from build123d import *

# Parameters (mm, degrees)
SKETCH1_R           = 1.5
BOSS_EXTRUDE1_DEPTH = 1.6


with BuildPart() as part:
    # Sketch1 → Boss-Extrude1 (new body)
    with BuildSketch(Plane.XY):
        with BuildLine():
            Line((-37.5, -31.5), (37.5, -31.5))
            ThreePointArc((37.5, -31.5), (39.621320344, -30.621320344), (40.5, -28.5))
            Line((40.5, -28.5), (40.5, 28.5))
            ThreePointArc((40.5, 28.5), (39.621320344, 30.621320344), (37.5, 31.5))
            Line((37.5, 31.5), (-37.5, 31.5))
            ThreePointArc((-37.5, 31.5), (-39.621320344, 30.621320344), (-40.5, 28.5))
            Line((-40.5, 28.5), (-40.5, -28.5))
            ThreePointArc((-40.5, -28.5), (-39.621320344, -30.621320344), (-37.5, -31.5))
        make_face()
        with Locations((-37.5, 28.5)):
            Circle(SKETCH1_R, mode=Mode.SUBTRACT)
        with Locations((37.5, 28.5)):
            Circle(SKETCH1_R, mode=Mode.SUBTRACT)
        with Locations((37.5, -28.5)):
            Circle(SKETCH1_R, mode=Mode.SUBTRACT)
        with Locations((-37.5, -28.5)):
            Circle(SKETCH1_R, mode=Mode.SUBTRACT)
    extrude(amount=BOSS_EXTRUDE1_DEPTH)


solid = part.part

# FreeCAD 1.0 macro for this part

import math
import FreeCAD as App
import Part
import Sketcher

V = App.Vector
Q = App.Units.Quantity

doc = App.newDocument("Part")
body = doc.addObject("PartDesign::Body", "Body")

# Sketch on XY plane
sketch1 = body.newObject("Sketcher::SketchObject", "Sketch")
sketch1.AttachmentSupport = (doc.getObject("XY_Plane"), [""])
sketch1.MapMode = "FlatFace"
sketch1.addGeometry([
    Part.LineSegment(V(-37.5, -31.5, 0), V(37.5, -31.5, 0)),  # 0
    Part.ArcOfCircle(Part.Circle(V(37.5, -28.5, 0), V(0, 0, 1), 3), math.radians(-90), math.radians(0)),  # 1
    Part.LineSegment(V(40.5, -28.5, 0), V(40.5, 28.5, 0)),  # 2
    Part.ArcOfCircle(Part.Circle(V(37.5, 28.5, 0), V(0, 0, 1), 3), math.radians(0), math.radians(90)),  # 3
    Part.LineSegment(V(37.5, 31.5, 0), V(-37.5, 31.5, 0)),  # 4
    Part.ArcOfCircle(Part.Circle(V(-37.5, 28.5, 0), V(0, 0, 1), 3), math.radians(90), math.radians(180)),  # 5
    Part.LineSegment(V(-40.5, 28.5, 0), V(-40.5, -28.5, 0)),  # 6
    Part.ArcOfCircle(Part.Circle(V(-37.5, -28.5, 0), V(0, 0, 1), 3), math.radians(180), math.radians(270)),  # 7
    Part.Circle(V(-37.5, -28.5, 0), V(0, 0, 1), 1.5),  # 8
    Part.Circle(V(37.5, -28.5, 0), V(0, 0, 1), 1.5),  # 9
    Part.Circle(V(-37.5, 28.5, 0), V(0, 0, 1), 1.5),  # 10
    Part.Circle(V(37.5, 28.5, 0), V(0, 0, 1), 1.5),  # 11
], False)
sketch1.addConstraint([
    Sketcher.Constraint("Tangent", 0, 2, 1, 1),
    Sketcher.Constraint("Tangent", 1, 2, 2, 1),
    Sketcher.Constraint("Tangent", 2, 2, 3, 1),
    Sketcher.Constraint("Tangent", 3, 2, 4, 1),
    Sketcher.Constraint("Tangent", 4, 2, 5, 1),
    Sketcher.Constraint("Tangent", 5, 2, 6, 1),
    Sketcher.Constraint("Tangent", 6, 2, 7, 1),
    Sketcher.Constraint("Tangent", 7, 2, 0, 1),
    Sketcher.Constraint("Horizontal", 0),
    Sketcher.Constraint("Vertical", 2),
    Sketcher.Constraint("Horizontal", 4),
    Sketcher.Constraint("Vertical", 6),
    Sketcher.Constraint("Coincident", 8, 3, 7, 3),
    Sketcher.Constraint("Coincident", 9, 3, 1, 3),
    Sketcher.Constraint("Coincident", 10, 3, 5, 3),
    Sketcher.Constraint("Coincident", 11, 3, 3, 3),
    Sketcher.Constraint("Equal", 1, 3),
    Sketcher.Constraint("Equal", 3, 5),
    Sketcher.Constraint("Equal", 5, 7),
    Sketcher.Constraint("Equal", 8, 9),
    Sketcher.Constraint("Equal", 9, 10),
    Sketcher.Constraint("Equal", 10, 11),
    Sketcher.Constraint("Symmetric", 1, 3, 5, 3, -1, 1),
    Sketcher.Constraint("Diameter", 8, Q("3 mm")),
    Sketcher.Constraint("Radius", 1, Q("3 mm")),
    Sketcher.Constraint("DistanceX", 0, 1, 0, 2, Q("75 mm")),
    Sketcher.Constraint("DistanceY", 2, 1, 2, 2, Q("57 mm")),
])
pad1 = body.newObject("PartDesign::Pad", "Pad")
pad1.Profile = sketch1
pad1.Length = 1.6

doc.recompute()
